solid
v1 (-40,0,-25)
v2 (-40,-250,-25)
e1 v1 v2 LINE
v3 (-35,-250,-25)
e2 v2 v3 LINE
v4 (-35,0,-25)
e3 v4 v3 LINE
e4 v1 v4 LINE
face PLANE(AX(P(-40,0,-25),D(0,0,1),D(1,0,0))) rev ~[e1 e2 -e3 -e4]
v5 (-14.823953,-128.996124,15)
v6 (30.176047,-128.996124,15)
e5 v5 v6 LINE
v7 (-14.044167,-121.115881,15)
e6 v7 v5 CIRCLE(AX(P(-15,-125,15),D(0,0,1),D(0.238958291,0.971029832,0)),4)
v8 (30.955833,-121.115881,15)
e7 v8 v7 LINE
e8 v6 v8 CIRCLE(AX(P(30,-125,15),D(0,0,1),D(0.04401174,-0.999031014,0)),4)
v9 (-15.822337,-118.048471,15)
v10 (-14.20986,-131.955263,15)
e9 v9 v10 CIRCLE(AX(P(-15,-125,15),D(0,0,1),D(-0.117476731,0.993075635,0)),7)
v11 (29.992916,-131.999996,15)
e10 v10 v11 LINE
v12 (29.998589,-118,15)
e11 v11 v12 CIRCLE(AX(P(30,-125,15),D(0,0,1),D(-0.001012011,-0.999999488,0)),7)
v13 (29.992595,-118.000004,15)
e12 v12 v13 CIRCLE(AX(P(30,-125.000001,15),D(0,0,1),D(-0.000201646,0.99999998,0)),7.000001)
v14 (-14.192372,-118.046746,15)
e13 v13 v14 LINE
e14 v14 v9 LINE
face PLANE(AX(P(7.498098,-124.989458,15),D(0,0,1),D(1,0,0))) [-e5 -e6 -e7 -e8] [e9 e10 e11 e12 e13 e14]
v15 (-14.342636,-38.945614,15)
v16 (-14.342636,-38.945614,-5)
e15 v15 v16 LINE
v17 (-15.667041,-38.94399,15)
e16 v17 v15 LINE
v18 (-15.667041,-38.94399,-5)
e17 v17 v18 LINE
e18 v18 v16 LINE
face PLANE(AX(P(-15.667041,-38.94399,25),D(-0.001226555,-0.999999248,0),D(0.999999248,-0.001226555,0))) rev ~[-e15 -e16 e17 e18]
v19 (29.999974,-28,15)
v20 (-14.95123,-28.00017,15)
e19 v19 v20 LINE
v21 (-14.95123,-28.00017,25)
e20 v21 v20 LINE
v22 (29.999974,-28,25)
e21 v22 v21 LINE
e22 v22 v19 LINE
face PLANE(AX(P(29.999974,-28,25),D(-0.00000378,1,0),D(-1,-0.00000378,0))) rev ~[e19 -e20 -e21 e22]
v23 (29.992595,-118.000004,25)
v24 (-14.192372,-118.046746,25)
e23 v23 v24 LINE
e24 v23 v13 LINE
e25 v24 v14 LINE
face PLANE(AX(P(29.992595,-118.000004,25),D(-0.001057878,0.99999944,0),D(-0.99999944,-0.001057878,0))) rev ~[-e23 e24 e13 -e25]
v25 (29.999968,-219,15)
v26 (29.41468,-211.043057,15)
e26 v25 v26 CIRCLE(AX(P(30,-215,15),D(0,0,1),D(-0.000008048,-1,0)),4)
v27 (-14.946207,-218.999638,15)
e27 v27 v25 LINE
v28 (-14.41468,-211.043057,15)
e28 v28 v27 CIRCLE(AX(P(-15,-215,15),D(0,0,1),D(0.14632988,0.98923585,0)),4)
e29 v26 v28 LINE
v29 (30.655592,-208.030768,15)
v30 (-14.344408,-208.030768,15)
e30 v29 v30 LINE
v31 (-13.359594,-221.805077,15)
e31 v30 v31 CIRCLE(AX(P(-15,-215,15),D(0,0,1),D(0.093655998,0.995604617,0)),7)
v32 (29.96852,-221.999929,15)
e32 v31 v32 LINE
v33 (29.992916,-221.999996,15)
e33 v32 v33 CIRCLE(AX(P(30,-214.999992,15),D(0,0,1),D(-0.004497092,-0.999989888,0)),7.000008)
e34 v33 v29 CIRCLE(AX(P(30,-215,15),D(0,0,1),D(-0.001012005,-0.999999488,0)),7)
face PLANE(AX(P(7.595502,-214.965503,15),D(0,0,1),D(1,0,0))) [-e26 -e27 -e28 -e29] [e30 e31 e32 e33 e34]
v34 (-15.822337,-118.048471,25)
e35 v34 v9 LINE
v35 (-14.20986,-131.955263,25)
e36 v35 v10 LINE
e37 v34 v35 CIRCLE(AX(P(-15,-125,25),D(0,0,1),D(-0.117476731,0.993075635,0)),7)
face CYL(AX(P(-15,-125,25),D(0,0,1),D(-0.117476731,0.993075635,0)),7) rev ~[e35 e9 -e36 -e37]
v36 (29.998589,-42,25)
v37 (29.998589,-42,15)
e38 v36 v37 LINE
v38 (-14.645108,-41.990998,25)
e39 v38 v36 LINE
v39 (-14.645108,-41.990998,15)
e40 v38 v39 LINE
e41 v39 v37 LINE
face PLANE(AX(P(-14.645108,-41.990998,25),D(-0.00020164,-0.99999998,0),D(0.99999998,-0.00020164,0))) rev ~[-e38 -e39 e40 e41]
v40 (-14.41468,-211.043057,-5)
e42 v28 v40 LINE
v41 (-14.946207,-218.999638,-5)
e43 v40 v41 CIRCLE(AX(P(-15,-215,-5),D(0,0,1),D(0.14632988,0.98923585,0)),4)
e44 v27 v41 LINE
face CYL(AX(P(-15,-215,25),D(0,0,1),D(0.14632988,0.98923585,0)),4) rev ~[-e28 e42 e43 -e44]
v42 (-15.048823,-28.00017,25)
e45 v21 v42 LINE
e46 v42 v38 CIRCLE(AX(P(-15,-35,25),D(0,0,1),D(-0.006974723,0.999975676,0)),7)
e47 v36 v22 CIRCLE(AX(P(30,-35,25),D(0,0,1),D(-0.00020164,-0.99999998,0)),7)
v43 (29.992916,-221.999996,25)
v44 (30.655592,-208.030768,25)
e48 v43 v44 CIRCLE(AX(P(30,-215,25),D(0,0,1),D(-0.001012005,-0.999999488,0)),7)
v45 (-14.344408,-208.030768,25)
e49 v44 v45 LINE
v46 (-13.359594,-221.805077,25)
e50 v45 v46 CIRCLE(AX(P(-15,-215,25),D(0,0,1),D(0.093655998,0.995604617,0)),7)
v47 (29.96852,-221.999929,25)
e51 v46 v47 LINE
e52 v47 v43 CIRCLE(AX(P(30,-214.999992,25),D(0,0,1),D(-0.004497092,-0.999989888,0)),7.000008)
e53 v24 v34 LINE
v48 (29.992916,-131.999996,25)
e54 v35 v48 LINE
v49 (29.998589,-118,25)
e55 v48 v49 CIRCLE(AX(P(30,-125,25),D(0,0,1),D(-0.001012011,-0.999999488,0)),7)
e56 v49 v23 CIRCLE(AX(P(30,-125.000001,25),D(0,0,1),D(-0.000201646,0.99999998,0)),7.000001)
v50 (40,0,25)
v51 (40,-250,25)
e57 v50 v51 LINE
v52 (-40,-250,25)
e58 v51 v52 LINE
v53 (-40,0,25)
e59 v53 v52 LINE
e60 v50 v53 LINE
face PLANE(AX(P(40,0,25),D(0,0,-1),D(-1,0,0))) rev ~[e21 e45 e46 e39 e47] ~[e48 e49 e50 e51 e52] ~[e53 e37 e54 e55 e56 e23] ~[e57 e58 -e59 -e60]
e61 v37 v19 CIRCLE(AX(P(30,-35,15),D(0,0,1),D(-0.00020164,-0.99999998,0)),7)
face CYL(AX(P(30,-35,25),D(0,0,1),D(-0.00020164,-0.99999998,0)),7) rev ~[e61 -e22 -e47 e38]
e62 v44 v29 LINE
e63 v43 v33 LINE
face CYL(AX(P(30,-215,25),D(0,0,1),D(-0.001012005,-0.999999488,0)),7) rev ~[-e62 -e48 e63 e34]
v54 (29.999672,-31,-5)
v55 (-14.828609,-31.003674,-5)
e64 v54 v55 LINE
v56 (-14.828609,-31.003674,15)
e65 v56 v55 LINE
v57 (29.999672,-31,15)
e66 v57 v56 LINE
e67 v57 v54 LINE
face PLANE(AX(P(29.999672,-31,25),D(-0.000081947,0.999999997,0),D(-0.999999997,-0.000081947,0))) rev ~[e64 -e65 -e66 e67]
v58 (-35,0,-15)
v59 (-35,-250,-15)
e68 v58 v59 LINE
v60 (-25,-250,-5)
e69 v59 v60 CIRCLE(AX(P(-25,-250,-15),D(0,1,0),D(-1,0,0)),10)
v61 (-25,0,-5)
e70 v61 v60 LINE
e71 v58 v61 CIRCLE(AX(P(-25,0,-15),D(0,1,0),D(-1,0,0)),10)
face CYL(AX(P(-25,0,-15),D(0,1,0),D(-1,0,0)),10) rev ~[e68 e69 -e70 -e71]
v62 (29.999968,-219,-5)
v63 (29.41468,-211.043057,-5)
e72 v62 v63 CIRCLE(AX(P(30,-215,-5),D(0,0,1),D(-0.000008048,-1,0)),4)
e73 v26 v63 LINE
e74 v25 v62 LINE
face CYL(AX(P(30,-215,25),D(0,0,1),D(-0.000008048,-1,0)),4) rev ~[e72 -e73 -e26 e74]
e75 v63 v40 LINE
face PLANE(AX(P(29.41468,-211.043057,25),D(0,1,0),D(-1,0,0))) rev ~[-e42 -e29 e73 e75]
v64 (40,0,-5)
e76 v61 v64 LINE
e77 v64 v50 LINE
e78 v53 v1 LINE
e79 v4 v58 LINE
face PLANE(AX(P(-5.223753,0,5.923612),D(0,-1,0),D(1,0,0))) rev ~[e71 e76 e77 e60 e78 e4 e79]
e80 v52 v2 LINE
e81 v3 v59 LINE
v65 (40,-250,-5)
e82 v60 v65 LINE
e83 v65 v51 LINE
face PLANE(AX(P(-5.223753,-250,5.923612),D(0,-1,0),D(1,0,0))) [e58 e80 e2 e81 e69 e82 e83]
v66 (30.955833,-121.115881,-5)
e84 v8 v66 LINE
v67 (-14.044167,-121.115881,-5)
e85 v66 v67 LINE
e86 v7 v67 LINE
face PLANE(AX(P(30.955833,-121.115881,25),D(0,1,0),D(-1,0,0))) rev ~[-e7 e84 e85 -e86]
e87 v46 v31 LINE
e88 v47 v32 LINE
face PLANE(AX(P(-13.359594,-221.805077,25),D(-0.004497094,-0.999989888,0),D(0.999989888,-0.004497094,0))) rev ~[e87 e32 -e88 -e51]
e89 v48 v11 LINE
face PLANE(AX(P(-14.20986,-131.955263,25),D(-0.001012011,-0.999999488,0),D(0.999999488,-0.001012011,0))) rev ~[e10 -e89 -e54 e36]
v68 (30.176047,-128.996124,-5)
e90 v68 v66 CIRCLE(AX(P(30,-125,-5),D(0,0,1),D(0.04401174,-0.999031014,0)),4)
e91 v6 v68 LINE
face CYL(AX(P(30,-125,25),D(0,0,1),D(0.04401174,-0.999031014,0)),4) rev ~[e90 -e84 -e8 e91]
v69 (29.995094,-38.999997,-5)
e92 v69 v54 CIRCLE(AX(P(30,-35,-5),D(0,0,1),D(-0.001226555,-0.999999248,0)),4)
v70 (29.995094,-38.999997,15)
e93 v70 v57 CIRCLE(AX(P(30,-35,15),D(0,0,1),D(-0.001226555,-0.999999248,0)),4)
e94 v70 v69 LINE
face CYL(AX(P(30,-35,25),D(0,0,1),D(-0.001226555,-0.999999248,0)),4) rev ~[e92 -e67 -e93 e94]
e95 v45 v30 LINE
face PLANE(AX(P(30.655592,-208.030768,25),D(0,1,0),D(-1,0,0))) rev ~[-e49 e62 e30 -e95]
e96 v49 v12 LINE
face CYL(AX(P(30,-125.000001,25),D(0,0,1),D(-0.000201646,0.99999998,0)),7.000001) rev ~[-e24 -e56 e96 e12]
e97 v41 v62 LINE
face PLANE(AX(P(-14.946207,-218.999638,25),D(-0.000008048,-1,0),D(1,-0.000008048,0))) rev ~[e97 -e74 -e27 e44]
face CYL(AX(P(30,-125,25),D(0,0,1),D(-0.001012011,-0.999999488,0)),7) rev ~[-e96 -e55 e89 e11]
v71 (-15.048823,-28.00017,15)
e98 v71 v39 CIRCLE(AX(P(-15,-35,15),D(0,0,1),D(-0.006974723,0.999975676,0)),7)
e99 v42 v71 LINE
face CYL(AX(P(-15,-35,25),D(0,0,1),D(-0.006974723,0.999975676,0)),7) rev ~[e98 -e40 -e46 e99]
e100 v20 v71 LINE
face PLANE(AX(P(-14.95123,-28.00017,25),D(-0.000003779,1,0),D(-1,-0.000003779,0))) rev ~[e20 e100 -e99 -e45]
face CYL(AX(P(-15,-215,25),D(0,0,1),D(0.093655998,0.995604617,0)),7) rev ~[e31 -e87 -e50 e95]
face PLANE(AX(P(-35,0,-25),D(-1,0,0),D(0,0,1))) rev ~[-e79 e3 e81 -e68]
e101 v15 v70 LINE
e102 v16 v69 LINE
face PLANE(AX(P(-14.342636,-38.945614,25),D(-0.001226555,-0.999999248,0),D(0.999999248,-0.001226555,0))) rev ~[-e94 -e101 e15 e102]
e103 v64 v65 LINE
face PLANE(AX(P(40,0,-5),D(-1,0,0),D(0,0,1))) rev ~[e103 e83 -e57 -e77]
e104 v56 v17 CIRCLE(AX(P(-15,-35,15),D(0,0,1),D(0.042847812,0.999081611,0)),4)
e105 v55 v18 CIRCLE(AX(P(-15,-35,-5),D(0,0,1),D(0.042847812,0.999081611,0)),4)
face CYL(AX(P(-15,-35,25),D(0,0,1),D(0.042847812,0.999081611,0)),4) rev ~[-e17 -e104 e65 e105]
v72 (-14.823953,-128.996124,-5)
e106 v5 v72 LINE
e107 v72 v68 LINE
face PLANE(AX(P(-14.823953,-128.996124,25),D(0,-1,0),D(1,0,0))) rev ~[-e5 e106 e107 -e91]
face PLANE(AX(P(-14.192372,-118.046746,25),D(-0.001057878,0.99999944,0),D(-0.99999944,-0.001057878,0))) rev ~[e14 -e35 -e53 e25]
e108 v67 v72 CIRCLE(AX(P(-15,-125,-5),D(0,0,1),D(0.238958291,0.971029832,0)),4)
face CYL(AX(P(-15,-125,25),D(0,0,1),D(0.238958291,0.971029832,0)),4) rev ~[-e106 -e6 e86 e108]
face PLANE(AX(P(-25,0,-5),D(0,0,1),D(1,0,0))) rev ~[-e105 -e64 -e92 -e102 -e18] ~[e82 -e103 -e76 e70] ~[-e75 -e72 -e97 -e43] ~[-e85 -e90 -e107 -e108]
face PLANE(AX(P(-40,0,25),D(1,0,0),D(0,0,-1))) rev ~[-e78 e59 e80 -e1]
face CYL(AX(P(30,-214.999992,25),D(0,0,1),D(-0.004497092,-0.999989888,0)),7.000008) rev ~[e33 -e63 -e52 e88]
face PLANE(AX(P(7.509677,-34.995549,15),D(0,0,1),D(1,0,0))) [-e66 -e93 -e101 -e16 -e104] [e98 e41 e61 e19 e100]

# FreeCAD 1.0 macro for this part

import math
import FreeCAD as App
import Part
import Sketcher
from FreeCAD import Vector
Q = App.Units.Quantity

doc = App.newDocument("Part")
body = doc.addObject("PartDesign::Body", "Body")

sketch1 = body.newObject("Sketcher::SketchObject", "Sketch")
sketch1.AttachmentSupport = (doc.getObject("XZ_Plane"), [""])
sketch1.MapMode = "FlatFace"
sketch1.addGeometry(Part.LineSegment(Vector(-40, 25, 0), Vector(-40, -25, 0)), False)
sketch1.addGeometry(Part.LineSegment(Vector(-40, -25, 0), Vector(-35, -25, 0)), False)
sketch1.addGeometry(Part.LineSegment(Vector(-35, -25, 0), Vector(-35, -15, 0)), False)
sketch1.addGeometry(Part.ArcOfCircle(Part.Circle(Vector(-25, -15, 0), Vector(0, 0, 1), 10), math.radians(90), math.radians(180)), False)
sketch1.addGeometry(Part.LineSegment(Vector(-25, -5, 0), Vector(40, -5, 0)), False)
sketch1.addGeometry(Part.LineSegment(Vector(40, -5, 0), Vector(40, 25, 0)), False)
sketch1.addGeometry(Part.LineSegment(Vector(40, 25, 0), Vector(-40, 25, 0)), False)
sketch1.addConstraint(Sketcher.Constraint("Coincident", 0, 2, 1, 1))
sketch1.addConstraint(Sketcher.Constraint("Coincident", 1, 2, 2, 1))
sketch1.addConstraint(Sketcher.Constraint("Tangent", 2, 2, 3, 2))
sketch1.addConstraint(Sketcher.Constraint("Tangent", 3, 1, 4, 1))
sketch1.addConstraint(Sketcher.Constraint("Coincident", 4, 2, 5, 1))
sketch1.addConstraint(Sketcher.Constraint("Coincident", 5, 2, 6, 1))
sketch1.addConstraint(Sketcher.Constraint("Coincident", 6, 2, 0, 1))
sketch1.addConstraint(Sketcher.Constraint("Vertical", 0))
sketch1.addConstraint(Sketcher.Constraint("Horizontal", 1))
sketch1.addConstraint(Sketcher.Constraint("Vertical", 2))
sketch1.addConstraint(Sketcher.Constraint("Horizontal", 4))
sketch1.addConstraint(Sketcher.Constraint("Vertical", 5))
sketch1.addConstraint(Sketcher.Constraint("Horizontal", 6))
sketch1.addConstraint(Sketcher.Constraint("Symmetric", 0, 2, 5, 2, -1, 1))
sketch1.addConstraint(Sketcher.Constraint("Radius", 3, Q("10 mm")))
sketch1.addConstraint(Sketcher.Constraint("DistanceX", 1, 1, 1, 2, Q("5 mm")))
sketch1.addConstraint(Sketcher.Constraint("DistanceX", 4, 1, 4, 2, Q("65 mm")))
sketch1.addConstraint(Sketcher.Constraint("DistanceY", 0, 2, 0, 1, Q("50 mm")))
sketch1.addConstraint(Sketcher.Constraint("DistanceY", 2, 1, 2, 2, Q("10 mm")))
pad1 = body.newObject("PartDesign::Pad", "Pad")
pad1.Profile = sketch1
pad1.Length = 250

sketch2 = body.newObject("Sketcher::SketchObject", "Sketch001")
sketch2.AttachmentSupport = (doc.getObject("XY_Plane"), [""])
sketch2.MapMode = "FlatFace"
sketch2.AttachmentOffset = App.Placement(Vector(0, 0, 25), App.Rotation())
sketch2.addGeometry(Part.LineSegment(Vector(-14.20986, -131.955263, 0), Vector(29.992916, -131.999996, 0)), False)
sketch2.addGeometry(Part.ArcOfCircle(Part.Circle(Vector(30, -125, 0), Vector(0, 0, 1), 7), math.radians(-90.057984), math.radians(90.011553)), False)
sketch2.addGeometry(Part.ArcOfCircle(Part.Circle(Vector(30, -125.000001, 0), Vector(0, 0, 1), 7.000001), math.radians(90.011553), math.radians(90.060612)), False)
sketch2.addGeometry(Part.LineSegment(Vector(29.992595, -118.000004, 0), Vector(-14.192372, -118.046746, 0)), False)
sketch2.addGeometry(Part.LineSegment(Vector(-14.192372, -118.046746, 0), Vector(-15.822337, -118.048471, 0)), False)
sketch2.addGeometry(Part.ArcOfCircle(Part.Circle(Vector(-15, -125, 0), Vector(0, 0, 1), 7), math.radians(96.7465), math.radians(276.481196)), False)
sketch2.addGeometry(Part.LineSegment(Vector(-13.359594, -221.805077, 0), Vector(29.96852, -221.999929, 0)), False)
sketch2.addGeometry(Part.ArcOfCircle(Part.Circle(Vector(30, -214.999992, 0), Vector(0, 0, 1), 7.000008), math.radians(-90.257665), math.radians(-90.057984)), False)
sketch2.addGeometry(Part.ArcOfCircle(Part.Circle(Vector(30, -215, 0), Vector(0, 0, 1), 7), math.radians(-90.057984), math.radians(84.626031)), False)
sketch2.addGeometry(Part.LineSegment(Vector(30.655592, -208.030768, 0), Vector(-14.344408, -208.030768, 0)), False)
sketch2.addGeometry(Part.ArcOfCircle(Part.Circle(Vector(-15, -215, 0), Vector(0, 0, 1), 7), math.radians(84.626031), math.radians(283.55294)), False)
sketch2.addGeometry(Part.LineSegment(Vector(-14.645108, -41.990998, 0), Vector(29.998589, -42, 0)), False)
sketch2.addGeometry(Part.ArcOfCircle(Part.Circle(Vector(30, -35, 0), Vector(0, 0, 1), 7), math.radians(-90.011553), math.radians(90.000217)), False)
sketch2.addGeometry(Part.LineSegment(Vector(29.999974, -28, 0), Vector(-14.95123, -28.00017, 0)), False)
sketch2.addGeometry(Part.LineSegment(Vector(-14.95123, -28.00017, 0), Vector(-15.048823, -28.00017, 0)), False)
sketch2.addGeometry(Part.ArcOfCircle(Part.Circle(Vector(-15, -35, 0), Vector(0, 0, 1), 7), math.radians(90.399625), math.radians(272.90608)), False)
sketch2.addConstraint(Sketcher.Constraint("Tangent", 0, 2, 1, 1))
sketch2.addConstraint(Sketcher.Constraint("Tangent", 1, 2, 2, 1))
sketch2.addConstraint(Sketcher.Constraint("Tangent", 2, 2, 3, 1))
sketch2.addConstraint(Sketcher.Constraint("Coincident", 3, 2, 4, 1))
sketch2.addConstraint(Sketcher.Constraint("Coincident", 4, 2, 5, 1))
sketch2.addConstraint(Sketcher.Constraint("Coincident", 5, 2, 0, 1))
sketch2.addConstraint(Sketcher.Constraint("Tangent", 6, 2, 7, 1))
sketch2.addConstraint(Sketcher.Constraint("Tangent", 7, 2, 8, 1))
sketch2.addConstraint(Sketcher.Constraint("Coincident", 8, 2, 9, 1))
sketch2.addConstraint(Sketcher.Constraint("Coincident", 9, 2, 10, 1))
sketch2.addConstraint(Sketcher.Constraint("Coincident", 10, 2, 6, 1))
sketch2.addConstraint(Sketcher.Constraint("Tangent", 11, 2, 12, 1))
sketch2.addConstraint(Sketcher.Constraint("Tangent", 12, 2, 13, 1))
sketch2.addConstraint(Sketcher.Constraint("Coincident", 13, 2, 14, 1))
sketch2.addConstraint(Sketcher.Constraint("Coincident", 14, 2, 15, 1))
sketch2.addConstraint(Sketcher.Constraint("Coincident", 15, 2, 11, 1))
sketch2.addConstraint(Sketcher.Constraint("Horizontal", 9))
sketch2.addConstraint(Sketcher.Constraint("Horizontal", 14))
sketch2.addConstraint(Sketcher.Constraint("Equal", 1, 2))
sketch2.addConstraint(Sketcher.Constraint("Equal", 2, 5))
sketch2.addConstraint(Sketcher.Constraint("Equal", 5, 8))
sketch2.addConstraint(Sketcher.Constraint("Equal", 8, 10))
sketch2.addConstraint(Sketcher.Constraint("Equal", 10, 12))
sketch2.addConstraint(Sketcher.Constraint("Equal", 12, 15))
sketch2.addConstraint(Sketcher.Constraint("Parallel", 3, 4))
sketch2.addConstraint(Sketcher.Constraint("Horizontal", 2, 3, 5, 3))
sketch2.addConstraint(Sketcher.Constraint("Horizontal", 8, 3, 10, 3))
sketch2.addConstraint(Sketcher.Constraint("Horizontal", 12, 3, 15, 3))
sketch2.addConstraint(Sketcher.Constraint("Vertical", 2, 3, 7, 3))
sketch2.addConstraint(Sketcher.Constraint("Vertical", 5, 3, 10, 3))
sketch2.addConstraint(Sketcher.Constraint("Vertical", 8, 3, 12, 3))
sketch2.addConstraint(Sketcher.Constraint("Vertical", 10, 3, 15, 3))
sketch2.addConstraint(Sketcher.Constraint("Vertical", 0, 2, 7, 2))
sketch2.addConstraint(Sketcher.Constraint("Vertical", 1, 2, 11, 2))
sketch2.addConstraint(Sketcher.Constraint("Radius", 1, Q("7 mm")))
sketch2.addConstraint(Sketcher.Constraint("DistanceX", 9, 2, 9, 1, Q("45 mm")))
sketch2.addConstraint(Sketcher.Constraint("DistanceX", -1, 1, 1, 3, Q("30 mm")))
sketch2.addConstraint(Sketcher.Constraint("DistanceY", 1, 3, -1, 1, Q("125 mm")))
sketch2.addConstraint(Sketcher.Constraint("DistanceY", 8, 3, -1, 1, Q("215 mm")))
sketch2.addConstraint(Sketcher.Constraint("DistanceY", 12, 3, -1, 1, Q("35 mm")))
sketch2.addConstraint(Sketcher.Constraint("Radius", 7, Q("7.000008 mm")))
sketch2.addConstraint(Sketcher.Constraint("DistanceY", 11, 2, 15, 2, Q("0.009002 mm")))
sketch2.addConstraint(Sketcher.Constraint("Distance", 0, Q("44.202799 mm")))
sketch2.addConstraint(Sketcher.Constraint("DistanceX", 14, 2, 14, 1, Q("0.097593 mm")))
sketch2.addConstraint(Sketcher.Constraint("DistanceY", 4, 2, -1, 1, Q("118.048471 mm")))
sketch2.addConstraint(Sketcher.Constraint("DistanceX", -1, 1, 6, 2, Q("29.96852 mm")))
sketch2.addConstraint(Sketcher.Constraint("DistanceX", -1, 1, 8, 2, Q("30.655592 mm")))
sketch2.addConstraint(Sketcher.Constraint("DistanceX", 13, 2, -1, 1, Q("14.95123 mm")))
sketch2.addConstraint(Sketcher.Constraint("DistanceX", 3, 2, 1, 2, Q("44.190961 mm")))
pocket1 = body.newObject("PartDesign::Pocket", "Pocket")
pocket1.Profile = sketch2
pocket1.Length = 10

sketch3 = body.newObject("Sketcher::SketchObject", "Sketch002")
sketch3.AttachmentSupport = (doc.getObject("XY_Plane"), [""])
sketch3.MapMode = "FlatFace"
sketch3.AttachmentOffset = App.Placement(Vector(0, 0, 25), App.Rotation())
sketch3.addGeometry(Part.LineSegment(Vector(-14.946207, -218.999638, 0), Vector(29.999968, -219, 0)), False)
sketch3.addGeometry(Part.ArcOfCircle(Part.Circle(Vector(30, -215, 0), Vector(0, 0, 1), 4), math.radians(-90.000461), math.radians(98.414297)), False)
sketch3.addGeometry(Part.LineSegment(Vector(29.41468, -211.043057, 0), Vector(-14.41468, -211.043057, 0)), False)
sketch3.addGeometry(Part.ArcOfCircle(Part.Circle(Vector(-15, -215, 0), Vector(0, 0, 1), 4), math.radians(81.585703), math.radians(270.770547)), False)
sketch3.addGeometry(Part.LineSegment(Vector(-14.823953, -128.996124, 0), Vector(30.176047, -128.996124, 0)), False)
sketch3.addGeometry(Part.ArcOfCircle(Part.Circle(Vector(30, -125, 0), Vector(0, 0, 1), 4), math.radians(-87.477498), math.radians(76.174934)), False)
sketch3.addGeometry(Part.LineSegment(Vector(30.955833, -121.115881, 0), Vector(-14.044167, -121.115881, 0)), False)
sketch3.addGeometry(Part.ArcOfCircle(Part.Circle(Vector(-15, -125, 0), Vector(0, 0, 1), 4), math.radians(76.174934), math.radians(272.522502)), False)
sketch3.addGeometry(Part.LineSegment(Vector(-14.342636, -38.945614, 0), Vector(29.995094, -38.999997, 0)), False)
sketch3.addGeometry(Part.ArcOfCircle(Part.Circle(Vector(30, -35, 0), Vector(0, 0, 1), 4), math.radians(-90.070276), math.radians(90.004695)), False)
sketch3.addGeometry(Part.LineSegment(Vector(29.999672, -31, 0), Vector(-14.828609, -31.003674, 0)), False)
sketch3.addGeometry(Part.ArcOfCircle(Part.Circle(Vector(-15, -35, 0), Vector(0, 0, 1), 4), math.radians(87.544249), math.radians(260.400487)), False)
sketch3.addGeometry(Part.LineSegment(Vector(-15.667041, -38.94399, 0), Vector(-14.342636, -38.945614, 0)), False)
sketch3.addConstraint(Sketcher.Constraint("Tangent", 0, 2, 1, 1))
sketch3.addConstraint(Sketcher.Constraint("Coincident", 1, 2, 2, 1))
sketch3.addConstraint(Sketcher.Constraint("Coincident", 2, 2, 3, 1))
sketch3.addConstraint(Sketcher.Constraint("Coincident", 3, 2, 0, 1))
sketch3.addConstraint(Sketcher.Constraint("Coincident", 4, 2, 5, 1))
sketch3.addConstraint(Sketcher.Constraint("Coincident", 5, 2, 6, 1))
sketch3.addConstraint(Sketcher.Constraint("Coincident", 6, 2, 7, 1))
sketch3.addConstraint(Sketcher.Constraint("Coincident", 7, 2, 4, 1))
sketch3.addConstraint(Sketcher.Constraint("Tangent", 8, 2, 9, 1))
sketch3.addConstraint(Sketcher.Constraint("Tangent", 9, 2, 10, 1))
sketch3.addConstraint(Sketcher.Constraint("Coincident", 10, 2, 11, 1))
sketch3.addConstraint(Sketcher.Constraint("Coincident", 11, 2, 12, 1))
sketch3.addConstraint(Sketcher.Constraint("Coincident", 12, 2, 8, 1))
sketch3.addConstraint(Sketcher.Constraint("Horizontal", 2))
sketch3.addConstraint(Sketcher.Constraint("Horizontal", 4))
sketch3.addConstraint(Sketcher.Constraint("Horizontal", 6))
sketch3.addConstraint(Sketcher.Constraint("Equal", 1, 3))
sketch3.addConstraint(Sketcher.Constraint("Equal", 3, 5))
sketch3.addConstraint(Sketcher.Constraint("Equal", 5, 7))
sketch3.addConstraint(Sketcher.Constraint("Equal", 7, 9))
sketch3.addConstraint(Sketcher.Constraint("Equal", 9, 11))
sketch3.addConstraint(Sketcher.Constraint("Parallel", 8, 12))
sketch3.addConstraint(Sketcher.Constraint("Horizontal", 1, 3, 3, 3))
sketch3.addConstraint(Sketcher.Constraint("Horizontal", 5, 3, 7, 3))
sketch3.addConstraint(Sketcher.Constraint("Horizontal", 9, 3, 11, 3))
sketch3.addConstraint(Sketcher.Constraint("Vertical", 1, 3, 5, 3))
sketch3.addConstraint(Sketcher.Constraint("Vertical", 3, 3, 7, 3))
sketch3.addConstraint(Sketcher.Constraint("Vertical", 5, 3, 9, 3))
sketch3.addConstraint(Sketcher.Constraint("Vertical", 7, 3, 11, 3))
sketch3.addConstraint(Sketcher.Constraint("Radius", 1, Q("4 mm")))
sketch3.addConstraint(Sketcher.Constraint("DistanceX", 4, 1, 4, 2, Q("45 mm")))
sketch3.addConstraint(Sketcher.Constraint("DistanceX", -1, 1, 1, 3, Q("30 mm")))
sketch3.addConstraint(Sketcher.Constraint("DistanceY", 1, 3, -1, 1, Q("215 mm")))
sketch3.addConstraint(Sketcher.Constraint("DistanceY", 5, 3, -1, 1, Q("125 mm")))
sketch3.addConstraint(Sketcher.Constraint("DistanceY", 9, 3, -1, 1, Q("35 mm")))
sketch3.addConstraint(Sketcher.Constraint("DistanceX", 2, 2, 2, 1, Q("43.829361 mm")))
sketch3.addConstraint(Sketcher.Constraint("Distance", 10, Q("44.828281 mm")))
sketch3.addConstraint(Sketcher.Constraint("DistanceY", 3, 2, -1, 1, Q("218.999638 mm")))
sketch3.addConstraint(Sketcher.Constraint("DistanceY", 5, 2, -1, 1, Q("121.115881 mm")))
sketch3.addConstraint(Sketcher.Constraint("DistanceX", 11, 2, -1, 1, Q("15.667041 mm")))
sketch3.addConstraint(Sketcher.Constraint("DistanceX", 0, 2, 4, 2, Q("0.176079 mm")))
sketch3.addConstraint(Sketcher.Constraint("DistanceX", 12, 2, 8, 2, Q("44.337729 mm")))
pocket2 = body.newObject("PartDesign::Pocket", "Pocket001")
pocket2.Profile = sketch3
pocket2.Length = 108

doc.recompute()
